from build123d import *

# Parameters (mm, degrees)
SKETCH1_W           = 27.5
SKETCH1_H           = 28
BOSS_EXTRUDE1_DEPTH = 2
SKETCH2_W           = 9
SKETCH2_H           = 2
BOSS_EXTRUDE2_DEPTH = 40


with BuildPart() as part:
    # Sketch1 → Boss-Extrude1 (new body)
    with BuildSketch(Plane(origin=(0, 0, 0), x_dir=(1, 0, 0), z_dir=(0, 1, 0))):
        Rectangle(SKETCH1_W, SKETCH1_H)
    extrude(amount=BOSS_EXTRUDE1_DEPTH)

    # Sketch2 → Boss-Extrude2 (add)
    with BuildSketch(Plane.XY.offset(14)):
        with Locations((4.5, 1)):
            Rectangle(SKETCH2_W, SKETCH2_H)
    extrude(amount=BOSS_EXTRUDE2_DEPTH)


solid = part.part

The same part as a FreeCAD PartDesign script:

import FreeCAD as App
import Part
import Sketcher
from FreeCAD import Vector

doc = App.newDocument("Part")
body = doc.addObject("PartDesign::Body", "Body")

sketch1 = body.newObject("Sketcher::SketchObject", "Sketch")
sketch1.AttachmentSupport = (doc.getObject("XZ_Plane"), [""])
sketch1.MapMode = "FlatFace"
sketch1.addGeometry(Part.LineSegment(Vector(-14, -14, 0), Vector(-14, 14, 0)), False)
sketch1.addGeometry(Part.LineSegment(Vector(-14, 14, 0), Vector(14, 14, 0)), False)
sketch1.addGeometry(Part.LineSegment(Vector(14, 14, 0), Vector(14, -14, 0)), False)
sketch1.addGeometry(Part.LineSegment(Vector(14, -14, 0), Vector(-14, -14, 0)), False)
sketch1.addConstraint(Sketcher.Constraint("Coincident", 0, 2, 1, 1))
sketch1.addConstraint(Sketcher.Constraint("Coincident", 1, 2, 2, 1))
sketch1.addConstraint(Sketcher.Constraint("Coincident", 2, 2, 3, 1))
sketch1.addConstraint(Sketcher.Constraint("Coincident", 3, 2, 0, 1))
sketch1.addConstraint(Sketcher.Constraint("Vertical", 0))
sketch1.addConstraint(Sketcher.Constraint("Horizontal", 1))
sketch1.addConstraint(Sketcher.Constraint("Vertical", 2))
sketch1.addConstraint(Sketcher.Constraint("Horizontal", 3))
sketch1.addConstraint(Sketcher.Constraint("Symmetric", 0, 2, 2, 2, -1, 1))
sketch1.addConstraint(Sketcher.Constraint("DistanceY", 0, 1, 0, 2, 28.0))
sketch1.addConstraint(Sketcher.Constraint("DistanceX", 1, 1, 1, 2, 27.5))
pad1 = body.newObject("PartDesign::Pad", "Pad")
pad1.Profile = sketch1
pad1.Length = 2
pad1.Reversed = True

sketch2 = body.newObject("Sketcher::SketchObject", "Sketch001")
sketch2.AttachmentSupport = (doc.getObject("XY_Plane"), [""])
sketch2.MapMode = "FlatFace"
sketch2.AttachmentOffset = App.Placement(Vector(0, 0, 14), App.Rotation())
sketch2.addGeometry(Part.LineSegment(Vector(0, 2, 0), Vector(0, 0, 0)), False)
sketch2.addGeometry(Part.LineSegment(Vector(0, 0, 0), Vector(9, 0, 0)), False)
sketch2.addGeometry(Part.LineSegment(Vector(9, 0, 0), Vector(9, 2, 0)), False)
sketch2.addGeometry(Part.LineSegment(Vector(9, 2, 0), Vector(0, 2, 0)), False)
sketch2.addConstraint(Sketcher.Constraint("Coincident", 0, 2, 1, 1))
sketch2.addConstraint(Sketcher.Constraint("Coincident", 1, 2, 2, 1))
sketch2.addConstraint(Sketcher.Constraint("Coincident", 2, 2, 3, 1))
sketch2.addConstraint(Sketcher.Constraint("Coincident", 3, 2, 0, 1))
sketch2.addConstraint(Sketcher.Constraint("Vertical", 0))
sketch2.addConstraint(Sketcher.Constraint("Horizontal", 1))
sketch2.addConstraint(Sketcher.Constraint("Vertical", 2))
sketch2.addConstraint(Sketcher.Constraint("Horizontal", 3))
sketch2.addConstraint(Sketcher.Constraint("Coincident", 0, 2, -1, 1))
sketch2.addConstraint(Sketcher.Constraint("DistanceX", 1, 1, 1, 2, 9.0))
sketch2.addConstraint(Sketcher.Constraint("DistanceY", 0, 2, 0, 1, 2.0))
pad2 = body.newObject("PartDesign::Pad", "Pad001")
pad2.Profile = sketch2
pad2.Length = 40

doc.recompute()
